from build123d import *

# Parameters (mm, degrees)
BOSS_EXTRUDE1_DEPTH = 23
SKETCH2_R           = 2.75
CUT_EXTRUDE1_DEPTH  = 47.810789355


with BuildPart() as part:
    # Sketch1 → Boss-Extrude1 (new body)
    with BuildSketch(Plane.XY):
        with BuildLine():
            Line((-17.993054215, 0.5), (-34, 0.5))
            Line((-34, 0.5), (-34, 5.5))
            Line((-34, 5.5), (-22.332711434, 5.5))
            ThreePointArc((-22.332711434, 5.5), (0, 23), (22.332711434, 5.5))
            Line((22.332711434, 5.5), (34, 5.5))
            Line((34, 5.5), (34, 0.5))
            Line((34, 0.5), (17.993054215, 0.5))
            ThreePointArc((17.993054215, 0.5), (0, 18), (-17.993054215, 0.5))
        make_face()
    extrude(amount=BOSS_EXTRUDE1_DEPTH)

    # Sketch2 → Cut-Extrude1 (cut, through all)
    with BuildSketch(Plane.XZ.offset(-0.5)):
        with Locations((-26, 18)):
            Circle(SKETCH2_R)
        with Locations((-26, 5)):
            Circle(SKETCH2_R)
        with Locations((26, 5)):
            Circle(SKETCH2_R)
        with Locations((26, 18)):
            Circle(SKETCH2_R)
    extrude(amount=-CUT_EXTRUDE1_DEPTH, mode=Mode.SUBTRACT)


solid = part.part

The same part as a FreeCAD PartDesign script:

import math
import FreeCAD as App
import Part
import Sketcher

V = App.Vector
Q = App.Units.Quantity

doc = App.newDocument("Part")
body = doc.addObject("PartDesign::Body", "Body")

sketch1 = body.newObject("Sketcher::SketchObject", "Sketch")
sketch1.AttachmentSupport = (doc.getObject("XY_Plane"), [""])
sketch1.MapMode = "FlatFace"
sketch1.addGeometry([
    Part.LineSegment(V(-34, 0, 0), V(-18, 0, 0)),
    Part.ArcOfCircle(Part.Circle(V(0, 0, 0), V(0, 0, 1), 18), math.radians(2), math.radians(178)),
    Part.LineSegment(V(18, 0, 0), V(34, 0, 0)),
    Part.LineSegment(V(34, 0, 0), V(34, 6, 0)),
    Part.LineSegment(V(34, 6, 0), V(22, 6, 0)),
    Part.ArcOfCircle(Part.Circle(V(0, 0, 0), V(0, 0, 1), 23), math.radians(14), math.radians(166)),
    Part.LineSegment(V(-22, 6, 0), V(-34, 6, 0)),
    Part.LineSegment(V(-34, 6, 0), V(-34, 0, 0)),
], False)
sketch1.addConstraint([
    Sketcher.Constraint("Coincident", 0, 2, 1, 2),
    Sketcher.Constraint("Coincident", 1, 1, 2, 1),
    Sketcher.Constraint("Coincident", 2, 2, 3, 1),
    Sketcher.Constraint("Coincident", 3, 2, 4, 1),
    Sketcher.Constraint("Coincident", 4, 2, 5, 1),
    Sketcher.Constraint("Coincident", 5, 2, 6, 1),
    Sketcher.Constraint("Coincident", 6, 2, 7, 1),
    Sketcher.Constraint("Coincident", 7, 2, 0, 1),
    Sketcher.Constraint("Horizontal", 0),
    Sketcher.Constraint("Horizontal", 2),
    Sketcher.Constraint("Vertical", 3),
    Sketcher.Constraint("Horizontal", 4),
    Sketcher.Constraint("Horizontal", 6),
    Sketcher.Constraint("Vertical", 7),
    Sketcher.Constraint("Coincident", 1, 3, -1, 1),
    Sketcher.Constraint("Coincident", 5, 3, -1, 1),
    Sketcher.Constraint("Symmetric", 3, 2, 6, 2, -2),
    Sketcher.Constraint("Horizontal", 0, 2, 1, 1),
    Sketcher.Constraint("Radius", 1, Q("18 mm")),
    Sketcher.Constraint("Radius", 5, Q("23 mm")),
    Sketcher.Constraint("DistanceY", 3, 1, 3, 2, Q("5 mm")),
    Sketcher.Constraint("DistanceX", -1, 1, 2, 2, Q("34 mm")),
    Sketcher.Constraint("DistanceY", -1, 1, 0, 2, Q("0.5 mm")),
])
pad1 = body.newObject("PartDesign::Pad", "Pad")
pad1.Profile = sketch1
pad1.Length = 23

sketch2 = body.newObject("Sketcher::SketchObject", "Sketch001")
sketch2.AttachmentSupport = (doc.getObject("XZ_Plane"), [""])
sketch2.MapMode = "FlatFace"
sketch2.AttachmentOffset = App.Placement(V(0, 0, -0.5), App.Rotation())
sketch2.addGeometry([
    Part.Circle(V(-26, 18, 0), V(0, 0, 1), 2.8),
    Part.Circle(V(-26, 5, 0), V(0, 0, 1), 2.8),
    Part.Circle(V(26, 5, 0), V(0, 0, 1), 2.8),
    Part.Circle(V(26, 18, 0), V(0, 0, 1), 2.8),
], False)
sketch2.addConstraint([
    Sketcher.Constraint("Equal", 0, 1),
    Sketcher.Constraint("Equal", 1, 2),
    Sketcher.Constraint("Equal", 2, 3),
    Sketcher.Constraint("Symmetric", 1, 3, 2, 3, -2),
    Sketcher.Constraint("Symmetric", 0, 3, 3, 3, -2),
    Sketcher.Constraint("Vertical", 0, 3, 1, 3),
    Sketcher.Constraint("Diameter", 0, Q("5.5 mm")),
    Sketcher.Constraint("DistanceX", 0, 3, -1, 1, Q("26 mm")),
    Sketcher.Constraint("DistanceY", -1, 1, 0, 3, Q("18 mm")),
    Sketcher.Constraint("DistanceY", -1, 1, 1, 3, Q("5 mm")),
])
pocket1 = body.newObject("PartDesign::Pocket", "Pocket")
pocket1.Profile = sketch2
pocket1.Type = "ThroughAll"

doc.recompute()
